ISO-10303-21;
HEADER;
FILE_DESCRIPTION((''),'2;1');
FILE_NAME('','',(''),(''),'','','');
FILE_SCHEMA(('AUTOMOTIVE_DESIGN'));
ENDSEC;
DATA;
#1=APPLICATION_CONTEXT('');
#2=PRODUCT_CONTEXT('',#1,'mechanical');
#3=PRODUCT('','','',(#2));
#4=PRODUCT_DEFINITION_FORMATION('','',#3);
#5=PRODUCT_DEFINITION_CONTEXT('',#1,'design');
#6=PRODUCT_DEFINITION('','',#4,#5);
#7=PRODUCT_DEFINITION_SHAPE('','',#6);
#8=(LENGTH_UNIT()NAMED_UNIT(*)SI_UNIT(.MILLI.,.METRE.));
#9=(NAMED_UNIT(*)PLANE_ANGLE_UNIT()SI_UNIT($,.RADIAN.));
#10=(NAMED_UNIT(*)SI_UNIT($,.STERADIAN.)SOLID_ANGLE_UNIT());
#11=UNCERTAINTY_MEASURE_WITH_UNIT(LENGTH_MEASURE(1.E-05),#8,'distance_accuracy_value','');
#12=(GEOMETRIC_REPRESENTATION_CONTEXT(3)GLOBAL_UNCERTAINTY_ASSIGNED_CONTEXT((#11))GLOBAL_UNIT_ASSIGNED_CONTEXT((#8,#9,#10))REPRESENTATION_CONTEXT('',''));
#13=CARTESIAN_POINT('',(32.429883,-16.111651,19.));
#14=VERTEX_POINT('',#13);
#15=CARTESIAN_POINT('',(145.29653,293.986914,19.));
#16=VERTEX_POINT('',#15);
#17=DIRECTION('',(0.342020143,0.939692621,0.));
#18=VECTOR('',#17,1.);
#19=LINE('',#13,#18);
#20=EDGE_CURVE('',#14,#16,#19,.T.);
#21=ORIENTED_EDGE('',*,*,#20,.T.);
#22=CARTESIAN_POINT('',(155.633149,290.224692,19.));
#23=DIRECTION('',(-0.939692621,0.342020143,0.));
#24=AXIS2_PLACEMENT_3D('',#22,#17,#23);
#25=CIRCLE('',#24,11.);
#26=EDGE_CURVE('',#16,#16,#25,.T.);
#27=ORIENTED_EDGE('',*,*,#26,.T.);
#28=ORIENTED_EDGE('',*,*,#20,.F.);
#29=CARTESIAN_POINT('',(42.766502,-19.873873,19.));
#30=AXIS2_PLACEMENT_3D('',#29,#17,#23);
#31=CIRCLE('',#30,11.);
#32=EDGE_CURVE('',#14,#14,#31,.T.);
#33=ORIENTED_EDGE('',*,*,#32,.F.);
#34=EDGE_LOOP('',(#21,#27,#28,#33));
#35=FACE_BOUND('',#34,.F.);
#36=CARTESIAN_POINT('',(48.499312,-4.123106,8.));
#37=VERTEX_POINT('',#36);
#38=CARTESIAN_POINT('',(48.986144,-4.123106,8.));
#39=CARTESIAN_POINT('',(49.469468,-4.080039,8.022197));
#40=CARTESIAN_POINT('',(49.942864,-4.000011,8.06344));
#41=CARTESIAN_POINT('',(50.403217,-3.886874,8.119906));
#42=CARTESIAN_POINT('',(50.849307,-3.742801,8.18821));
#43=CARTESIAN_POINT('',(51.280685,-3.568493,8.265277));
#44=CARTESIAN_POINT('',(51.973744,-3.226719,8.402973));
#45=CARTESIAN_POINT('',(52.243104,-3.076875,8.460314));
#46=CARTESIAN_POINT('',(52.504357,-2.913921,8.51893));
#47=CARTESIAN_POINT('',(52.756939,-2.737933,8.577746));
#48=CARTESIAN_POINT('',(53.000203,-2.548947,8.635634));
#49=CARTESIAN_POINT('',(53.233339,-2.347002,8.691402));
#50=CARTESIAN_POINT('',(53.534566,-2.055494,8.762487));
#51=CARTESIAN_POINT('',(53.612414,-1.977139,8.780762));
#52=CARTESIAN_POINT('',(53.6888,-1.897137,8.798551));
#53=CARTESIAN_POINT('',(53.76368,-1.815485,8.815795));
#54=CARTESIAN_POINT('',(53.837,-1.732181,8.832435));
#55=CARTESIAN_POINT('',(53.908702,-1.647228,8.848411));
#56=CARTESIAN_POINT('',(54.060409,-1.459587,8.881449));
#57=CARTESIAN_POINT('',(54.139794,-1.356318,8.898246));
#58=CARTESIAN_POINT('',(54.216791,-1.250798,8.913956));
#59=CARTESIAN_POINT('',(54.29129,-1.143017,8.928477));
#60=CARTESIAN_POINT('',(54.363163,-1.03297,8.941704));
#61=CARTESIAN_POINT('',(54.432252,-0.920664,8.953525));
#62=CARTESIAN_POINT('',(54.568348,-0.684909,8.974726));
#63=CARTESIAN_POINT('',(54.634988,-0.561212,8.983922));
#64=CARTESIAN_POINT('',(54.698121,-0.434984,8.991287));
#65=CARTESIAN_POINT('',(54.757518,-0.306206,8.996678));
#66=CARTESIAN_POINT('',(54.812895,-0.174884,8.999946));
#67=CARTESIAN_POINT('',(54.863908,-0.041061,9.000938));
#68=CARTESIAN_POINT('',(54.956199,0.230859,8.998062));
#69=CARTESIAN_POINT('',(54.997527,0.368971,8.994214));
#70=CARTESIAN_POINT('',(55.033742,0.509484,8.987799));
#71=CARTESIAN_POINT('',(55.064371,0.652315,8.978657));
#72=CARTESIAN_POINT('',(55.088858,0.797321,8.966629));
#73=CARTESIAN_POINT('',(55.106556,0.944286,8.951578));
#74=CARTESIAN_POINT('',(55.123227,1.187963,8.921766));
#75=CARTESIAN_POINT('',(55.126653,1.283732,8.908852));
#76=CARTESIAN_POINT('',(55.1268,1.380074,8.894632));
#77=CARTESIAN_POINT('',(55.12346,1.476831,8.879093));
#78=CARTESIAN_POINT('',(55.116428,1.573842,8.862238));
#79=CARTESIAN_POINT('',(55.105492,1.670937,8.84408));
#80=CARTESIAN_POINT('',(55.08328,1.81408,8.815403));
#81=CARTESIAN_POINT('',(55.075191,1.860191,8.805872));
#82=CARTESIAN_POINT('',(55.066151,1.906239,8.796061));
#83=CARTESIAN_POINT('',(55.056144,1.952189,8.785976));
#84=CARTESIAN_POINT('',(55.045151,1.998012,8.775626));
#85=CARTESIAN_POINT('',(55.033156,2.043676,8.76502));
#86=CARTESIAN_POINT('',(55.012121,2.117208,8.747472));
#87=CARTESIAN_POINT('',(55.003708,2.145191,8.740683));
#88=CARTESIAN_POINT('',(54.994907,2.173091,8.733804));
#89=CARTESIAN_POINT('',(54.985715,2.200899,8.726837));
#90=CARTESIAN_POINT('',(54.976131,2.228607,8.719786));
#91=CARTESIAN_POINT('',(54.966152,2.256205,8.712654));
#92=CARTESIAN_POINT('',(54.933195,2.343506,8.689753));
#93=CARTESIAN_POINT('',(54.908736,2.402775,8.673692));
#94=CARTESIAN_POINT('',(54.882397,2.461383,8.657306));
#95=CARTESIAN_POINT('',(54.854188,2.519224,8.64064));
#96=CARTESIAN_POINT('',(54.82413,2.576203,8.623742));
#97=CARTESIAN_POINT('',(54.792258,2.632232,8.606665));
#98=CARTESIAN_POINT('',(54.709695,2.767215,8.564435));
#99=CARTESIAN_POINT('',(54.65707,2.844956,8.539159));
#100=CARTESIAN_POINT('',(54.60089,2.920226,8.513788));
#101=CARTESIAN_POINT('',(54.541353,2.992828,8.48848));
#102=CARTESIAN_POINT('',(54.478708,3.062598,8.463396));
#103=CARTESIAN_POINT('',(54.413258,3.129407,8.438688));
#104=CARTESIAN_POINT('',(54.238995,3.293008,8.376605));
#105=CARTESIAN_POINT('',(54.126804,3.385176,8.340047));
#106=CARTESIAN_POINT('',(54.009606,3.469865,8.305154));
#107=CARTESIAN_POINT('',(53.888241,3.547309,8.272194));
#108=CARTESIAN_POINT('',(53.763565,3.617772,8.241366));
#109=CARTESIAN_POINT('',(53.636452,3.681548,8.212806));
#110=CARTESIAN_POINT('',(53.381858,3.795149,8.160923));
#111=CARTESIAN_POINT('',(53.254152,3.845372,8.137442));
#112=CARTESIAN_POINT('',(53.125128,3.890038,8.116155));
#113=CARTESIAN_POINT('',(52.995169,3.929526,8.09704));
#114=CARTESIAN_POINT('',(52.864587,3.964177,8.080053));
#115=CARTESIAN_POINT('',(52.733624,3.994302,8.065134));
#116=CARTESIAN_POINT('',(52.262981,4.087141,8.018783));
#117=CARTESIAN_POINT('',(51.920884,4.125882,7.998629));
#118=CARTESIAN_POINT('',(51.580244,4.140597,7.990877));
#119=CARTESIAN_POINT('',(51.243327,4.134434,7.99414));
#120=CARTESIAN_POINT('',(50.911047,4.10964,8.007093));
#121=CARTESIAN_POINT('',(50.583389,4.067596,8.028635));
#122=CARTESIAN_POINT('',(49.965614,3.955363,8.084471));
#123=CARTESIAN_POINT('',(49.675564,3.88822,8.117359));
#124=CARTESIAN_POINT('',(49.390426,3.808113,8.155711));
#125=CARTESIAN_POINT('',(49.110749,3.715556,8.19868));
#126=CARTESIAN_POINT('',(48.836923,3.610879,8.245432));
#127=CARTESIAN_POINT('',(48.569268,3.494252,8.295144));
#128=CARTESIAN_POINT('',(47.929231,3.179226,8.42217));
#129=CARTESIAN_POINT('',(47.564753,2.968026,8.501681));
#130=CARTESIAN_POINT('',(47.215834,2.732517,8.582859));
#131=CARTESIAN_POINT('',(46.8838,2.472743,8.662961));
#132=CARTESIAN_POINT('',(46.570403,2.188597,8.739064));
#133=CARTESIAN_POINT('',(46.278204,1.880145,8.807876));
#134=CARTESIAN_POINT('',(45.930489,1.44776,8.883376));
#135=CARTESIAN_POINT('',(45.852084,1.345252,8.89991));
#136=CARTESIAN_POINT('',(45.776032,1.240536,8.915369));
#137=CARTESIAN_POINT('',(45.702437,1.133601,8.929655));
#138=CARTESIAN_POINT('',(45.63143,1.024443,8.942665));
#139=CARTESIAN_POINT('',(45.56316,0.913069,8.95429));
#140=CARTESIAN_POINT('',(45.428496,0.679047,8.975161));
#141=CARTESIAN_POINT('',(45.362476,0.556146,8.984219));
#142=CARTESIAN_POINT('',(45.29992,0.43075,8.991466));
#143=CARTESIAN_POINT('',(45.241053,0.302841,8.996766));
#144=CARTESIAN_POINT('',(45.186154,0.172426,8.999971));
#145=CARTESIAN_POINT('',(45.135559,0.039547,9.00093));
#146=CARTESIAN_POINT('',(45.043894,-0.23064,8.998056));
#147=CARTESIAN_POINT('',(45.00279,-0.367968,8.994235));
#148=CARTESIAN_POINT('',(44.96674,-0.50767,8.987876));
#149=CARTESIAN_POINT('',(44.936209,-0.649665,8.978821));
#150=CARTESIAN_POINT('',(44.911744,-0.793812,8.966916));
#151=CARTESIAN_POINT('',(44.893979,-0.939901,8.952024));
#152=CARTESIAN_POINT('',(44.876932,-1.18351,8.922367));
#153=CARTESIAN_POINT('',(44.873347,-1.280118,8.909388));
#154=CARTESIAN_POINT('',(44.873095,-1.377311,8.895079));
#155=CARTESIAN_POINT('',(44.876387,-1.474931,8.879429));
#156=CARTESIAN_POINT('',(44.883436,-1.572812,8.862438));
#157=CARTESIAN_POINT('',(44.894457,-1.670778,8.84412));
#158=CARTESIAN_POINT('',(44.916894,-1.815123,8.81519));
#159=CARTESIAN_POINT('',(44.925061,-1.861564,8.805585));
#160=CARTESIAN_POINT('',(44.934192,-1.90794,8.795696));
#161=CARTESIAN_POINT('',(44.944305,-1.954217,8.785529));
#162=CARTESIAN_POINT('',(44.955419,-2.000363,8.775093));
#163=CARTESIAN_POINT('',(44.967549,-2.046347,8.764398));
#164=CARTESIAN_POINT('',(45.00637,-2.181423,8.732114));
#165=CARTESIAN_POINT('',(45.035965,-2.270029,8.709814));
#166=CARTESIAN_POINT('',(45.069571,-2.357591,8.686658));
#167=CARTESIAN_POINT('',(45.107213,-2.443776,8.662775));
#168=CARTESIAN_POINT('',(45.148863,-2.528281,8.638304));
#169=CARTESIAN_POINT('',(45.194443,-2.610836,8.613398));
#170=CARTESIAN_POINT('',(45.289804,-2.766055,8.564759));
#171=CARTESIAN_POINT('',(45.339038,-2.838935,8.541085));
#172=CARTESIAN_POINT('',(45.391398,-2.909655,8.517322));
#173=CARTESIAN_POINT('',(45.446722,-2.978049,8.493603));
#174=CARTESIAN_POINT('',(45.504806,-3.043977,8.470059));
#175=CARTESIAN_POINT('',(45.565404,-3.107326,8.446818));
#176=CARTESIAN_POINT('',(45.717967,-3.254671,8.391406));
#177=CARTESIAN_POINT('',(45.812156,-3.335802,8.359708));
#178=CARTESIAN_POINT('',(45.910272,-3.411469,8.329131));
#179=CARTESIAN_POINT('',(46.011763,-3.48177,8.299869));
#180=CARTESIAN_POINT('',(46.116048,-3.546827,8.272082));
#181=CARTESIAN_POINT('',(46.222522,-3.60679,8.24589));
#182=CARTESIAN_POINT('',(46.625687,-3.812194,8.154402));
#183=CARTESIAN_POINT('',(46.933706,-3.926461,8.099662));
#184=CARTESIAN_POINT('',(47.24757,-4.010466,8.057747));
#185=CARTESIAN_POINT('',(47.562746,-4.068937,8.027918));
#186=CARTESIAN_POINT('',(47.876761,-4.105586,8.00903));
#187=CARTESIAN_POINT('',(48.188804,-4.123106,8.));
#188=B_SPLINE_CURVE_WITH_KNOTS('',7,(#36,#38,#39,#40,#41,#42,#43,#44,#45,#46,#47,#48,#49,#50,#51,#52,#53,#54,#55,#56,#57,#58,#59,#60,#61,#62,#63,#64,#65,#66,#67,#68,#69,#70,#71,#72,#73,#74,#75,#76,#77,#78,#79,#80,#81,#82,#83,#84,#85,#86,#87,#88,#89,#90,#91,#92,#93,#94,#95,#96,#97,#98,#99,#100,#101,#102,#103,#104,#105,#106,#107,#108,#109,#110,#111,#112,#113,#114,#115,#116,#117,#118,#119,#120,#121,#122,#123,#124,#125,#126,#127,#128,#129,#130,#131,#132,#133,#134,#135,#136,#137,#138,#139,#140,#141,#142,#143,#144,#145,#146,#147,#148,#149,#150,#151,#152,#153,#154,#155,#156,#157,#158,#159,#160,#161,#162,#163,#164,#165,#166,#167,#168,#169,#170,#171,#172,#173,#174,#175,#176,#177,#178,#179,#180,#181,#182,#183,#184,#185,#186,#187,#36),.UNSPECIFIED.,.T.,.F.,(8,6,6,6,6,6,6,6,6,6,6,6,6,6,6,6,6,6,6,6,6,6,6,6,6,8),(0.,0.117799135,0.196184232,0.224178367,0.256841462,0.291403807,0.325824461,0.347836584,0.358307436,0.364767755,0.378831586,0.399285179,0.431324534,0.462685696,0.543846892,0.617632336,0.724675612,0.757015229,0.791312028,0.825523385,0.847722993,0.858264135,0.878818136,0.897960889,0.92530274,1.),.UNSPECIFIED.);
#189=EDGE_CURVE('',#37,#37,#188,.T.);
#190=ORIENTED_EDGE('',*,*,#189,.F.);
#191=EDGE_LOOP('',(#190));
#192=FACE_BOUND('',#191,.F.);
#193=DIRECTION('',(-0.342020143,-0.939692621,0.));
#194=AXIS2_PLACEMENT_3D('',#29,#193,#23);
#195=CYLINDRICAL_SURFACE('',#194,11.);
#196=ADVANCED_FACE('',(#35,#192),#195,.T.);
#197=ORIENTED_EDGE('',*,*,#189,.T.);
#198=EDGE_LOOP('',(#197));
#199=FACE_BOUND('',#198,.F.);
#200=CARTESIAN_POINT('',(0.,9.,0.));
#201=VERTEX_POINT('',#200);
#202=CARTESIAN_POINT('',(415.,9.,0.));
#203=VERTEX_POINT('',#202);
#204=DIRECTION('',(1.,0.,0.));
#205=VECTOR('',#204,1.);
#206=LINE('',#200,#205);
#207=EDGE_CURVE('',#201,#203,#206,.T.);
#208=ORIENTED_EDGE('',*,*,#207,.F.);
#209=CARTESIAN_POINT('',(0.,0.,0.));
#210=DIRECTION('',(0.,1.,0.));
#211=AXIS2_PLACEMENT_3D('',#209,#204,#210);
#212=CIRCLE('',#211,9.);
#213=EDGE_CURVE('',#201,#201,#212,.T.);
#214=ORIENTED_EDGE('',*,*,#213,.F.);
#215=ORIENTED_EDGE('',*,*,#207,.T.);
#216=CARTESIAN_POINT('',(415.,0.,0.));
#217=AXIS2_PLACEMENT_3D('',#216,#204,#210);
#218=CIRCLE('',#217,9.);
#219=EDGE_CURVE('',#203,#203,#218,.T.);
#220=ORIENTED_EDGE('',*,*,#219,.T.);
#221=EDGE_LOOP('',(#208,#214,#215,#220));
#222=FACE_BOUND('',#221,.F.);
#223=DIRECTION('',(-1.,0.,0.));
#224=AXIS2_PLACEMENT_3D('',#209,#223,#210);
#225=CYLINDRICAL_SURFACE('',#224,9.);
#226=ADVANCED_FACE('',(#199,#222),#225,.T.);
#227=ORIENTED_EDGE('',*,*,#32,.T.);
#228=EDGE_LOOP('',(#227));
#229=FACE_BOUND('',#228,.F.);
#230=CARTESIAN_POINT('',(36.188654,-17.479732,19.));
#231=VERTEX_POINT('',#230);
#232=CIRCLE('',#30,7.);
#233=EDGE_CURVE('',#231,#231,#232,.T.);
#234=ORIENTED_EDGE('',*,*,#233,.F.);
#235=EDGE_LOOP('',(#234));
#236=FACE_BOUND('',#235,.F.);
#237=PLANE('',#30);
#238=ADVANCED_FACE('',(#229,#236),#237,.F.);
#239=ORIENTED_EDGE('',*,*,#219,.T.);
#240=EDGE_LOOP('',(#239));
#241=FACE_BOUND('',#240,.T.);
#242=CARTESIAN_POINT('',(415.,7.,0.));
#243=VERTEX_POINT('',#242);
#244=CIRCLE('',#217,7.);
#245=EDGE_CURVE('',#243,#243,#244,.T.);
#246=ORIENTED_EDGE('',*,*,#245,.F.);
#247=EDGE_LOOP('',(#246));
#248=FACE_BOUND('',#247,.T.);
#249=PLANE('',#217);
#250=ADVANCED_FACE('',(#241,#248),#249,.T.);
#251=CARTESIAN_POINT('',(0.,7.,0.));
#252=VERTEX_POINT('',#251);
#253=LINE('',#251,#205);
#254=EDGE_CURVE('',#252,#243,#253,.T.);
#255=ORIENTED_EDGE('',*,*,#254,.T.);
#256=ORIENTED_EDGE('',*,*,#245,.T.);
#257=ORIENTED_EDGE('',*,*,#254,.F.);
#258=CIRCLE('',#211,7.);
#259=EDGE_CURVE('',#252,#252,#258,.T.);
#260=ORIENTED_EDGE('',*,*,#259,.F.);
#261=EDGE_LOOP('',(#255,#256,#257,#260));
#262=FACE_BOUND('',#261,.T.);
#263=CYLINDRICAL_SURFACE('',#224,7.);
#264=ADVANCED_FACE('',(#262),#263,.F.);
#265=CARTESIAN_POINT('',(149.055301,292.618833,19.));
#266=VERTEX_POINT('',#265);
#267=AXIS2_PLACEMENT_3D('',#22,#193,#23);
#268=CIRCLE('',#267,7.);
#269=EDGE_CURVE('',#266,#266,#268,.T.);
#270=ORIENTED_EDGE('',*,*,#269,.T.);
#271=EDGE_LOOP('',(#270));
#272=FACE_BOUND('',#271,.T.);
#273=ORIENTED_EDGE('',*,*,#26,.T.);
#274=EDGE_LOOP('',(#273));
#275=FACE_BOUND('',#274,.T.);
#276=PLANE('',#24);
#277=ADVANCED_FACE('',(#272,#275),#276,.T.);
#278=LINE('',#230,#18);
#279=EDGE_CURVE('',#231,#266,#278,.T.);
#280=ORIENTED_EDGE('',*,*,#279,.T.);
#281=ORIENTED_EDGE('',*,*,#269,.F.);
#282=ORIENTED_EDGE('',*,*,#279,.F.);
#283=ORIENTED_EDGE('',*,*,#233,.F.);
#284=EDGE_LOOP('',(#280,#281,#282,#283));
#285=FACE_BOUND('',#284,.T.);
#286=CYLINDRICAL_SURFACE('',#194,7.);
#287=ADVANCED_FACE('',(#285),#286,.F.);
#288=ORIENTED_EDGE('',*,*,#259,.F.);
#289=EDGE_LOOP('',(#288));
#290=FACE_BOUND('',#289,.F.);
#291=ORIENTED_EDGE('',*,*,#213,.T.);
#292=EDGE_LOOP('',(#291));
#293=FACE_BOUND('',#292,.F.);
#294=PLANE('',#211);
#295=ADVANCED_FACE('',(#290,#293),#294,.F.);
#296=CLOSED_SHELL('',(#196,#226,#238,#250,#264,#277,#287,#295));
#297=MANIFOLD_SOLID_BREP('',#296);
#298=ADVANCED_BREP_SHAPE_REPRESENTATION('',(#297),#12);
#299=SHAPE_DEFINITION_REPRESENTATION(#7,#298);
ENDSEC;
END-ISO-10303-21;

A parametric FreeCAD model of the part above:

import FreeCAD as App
import Part
import Sketcher

V = App.Vector
Q = App.Units.Quantity

doc = App.newDocument("Part")
body = doc.addObject("PartDesign::Body", "Body")

sketch1 = doc.addObject("Sketcher::SketchObject", "Sketch")
body.addObject(sketch1)
sketch1.AttachmentSupport = (doc.YZ_Plane, [""])
sketch1.MapMode = "FlatFace"
sketch1.addGeometry([
    Part.Circle(V(0, 0, 0), V(0, 0, 1), 9),
    Part.Circle(V(0, 0, 0), V(0, 0, 1), 7),
], False)
sketch1.addConstraint([
    Sketcher.Constraint("Coincident", 0, 3, -1, 1),
    Sketcher.Constraint("Coincident", 1, 3, -1, 1),
    Sketcher.Constraint("Diameter", 0, Q("18 mm")),
    Sketcher.Constraint("Diameter", 1, Q("14 mm")),
])
pad1 = doc.addObject("PartDesign::Pad", "Pad")
body.addObject(pad1)
pad1.Profile = sketch1
pad1.Length = 415

sketch2 = doc.addObject("Sketcher::SketchObject", "Sketch001")
body.addObject(sketch2)
sketch2.Placement = App.Placement(V(-1.384609, -3.804183, 0), App.Rotation(V(-0.939692621, 0.342020143, 0), V(0, 0, 1), V(0.342020143, 0.939692621, 0), "ZXY"))
sketch2.addGeometry([
    Part.Circle(V(-47, 19, 0), V(0, 0, 1), 11),
    Part.Circle(V(-47, 19, 0), V(0, 0, 1), 7),
], False)
sketch2.addConstraint([
    Sketcher.Constraint("Coincident", 1, 3, 0, 3),
    Sketcher.Constraint("Diameter", 0, Q("22 mm")),
    Sketcher.Constraint("Diameter", 1, Q("14 mm")),
    Sketcher.Constraint("DistanceY", -1, 1, 0, 3, Q("19 mm")),
    Sketcher.Constraint("DistanceX", 0, 3, -1, 1, Q("46.984631 mm")),
])
pad2 = doc.addObject("PartDesign::Pad", "Pad001")
body.addObject(pad2)
pad2.Profile = sketch2
pad2.Length = 330

sketch3 = doc.addObject("Sketcher::SketchObject", "Sketch002")
body.addObject(sketch3)
sketch3.Placement = App.Placement(V(-1.384609, -3.804183, 0), App.Rotation(V(0.939692621, -0.342020143, 0), V(0, 0, 1), V(-0.342020143, -0.939692621, 0), "ZXY"))
sketch3.addGeometry(Part.Circle(V(47, 19, 0), V(0, 0, 1), 7), False)
sketch3.addConstraint([
    Sketcher.Constraint("Diameter", 0, Q("14 mm")),
    Sketcher.Constraint("DistanceY", -1, 1, 0, 3, Q("19 mm")),
    Sketcher.Constraint("DistanceX", -1, 1, 0, 3, Q("46.984631 mm")),
])
pocket1 = doc.addObject("PartDesign::Pocket", "Pocket")
body.addObject(pocket1)
pocket1.Profile = sketch3
pocket1.Type = "ThroughAll"

doc.recompute()
